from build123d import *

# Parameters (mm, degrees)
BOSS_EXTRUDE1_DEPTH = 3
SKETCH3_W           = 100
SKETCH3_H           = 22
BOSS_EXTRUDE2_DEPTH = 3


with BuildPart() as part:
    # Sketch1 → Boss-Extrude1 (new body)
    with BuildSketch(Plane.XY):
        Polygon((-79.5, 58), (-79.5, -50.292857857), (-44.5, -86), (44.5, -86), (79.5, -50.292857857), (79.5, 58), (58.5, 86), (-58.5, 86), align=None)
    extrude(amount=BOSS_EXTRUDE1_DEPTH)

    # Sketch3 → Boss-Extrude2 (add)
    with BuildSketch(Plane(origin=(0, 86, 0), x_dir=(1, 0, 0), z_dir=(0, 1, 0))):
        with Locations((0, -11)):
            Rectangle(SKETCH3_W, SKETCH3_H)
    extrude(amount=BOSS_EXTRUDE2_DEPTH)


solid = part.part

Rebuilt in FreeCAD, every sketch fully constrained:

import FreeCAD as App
import Part
import Sketcher
from FreeCAD import Vector
Q = App.Units.Quantity

doc = App.newDocument("Part")
body = doc.addObject("PartDesign::Body", "Body")

# Sketch on XY plane
sketch1 = body.newObject("Sketcher::SketchObject", "Sketch")
sketch1.AttachmentSupport = (doc.getObject("XY_Plane"), [""])
sketch1.MapMode = "FlatFace"
sketch1.addGeometry(Part.LineSegment(Vector(-79.5, 58, 0), Vector(-79.5, -50.292858, 0)), False)
sketch1.addGeometry(Part.LineSegment(Vector(-79.5, -50.292858, 0), Vector(-44.5, -86, 0)), False)
sketch1.addGeometry(Part.LineSegment(Vector(-44.5, -86, 0), Vector(44.5, -86, 0)), False)
sketch1.addGeometry(Part.LineSegment(Vector(44.5, -86, 0), Vector(79.5, -50.292858, 0)), False)
sketch1.addGeometry(Part.LineSegment(Vector(79.5, -50.292858, 0), Vector(79.5, 58, 0)), False)
sketch1.addGeometry(Part.LineSegment(Vector(79.5, 58, 0), Vector(58.5, 86, 0)), False)
sketch1.addGeometry(Part.LineSegment(Vector(58.5, 86, 0), Vector(-58.5, 86, 0)), False)
sketch1.addGeometry(Part.LineSegment(Vector(-58.5, 86, 0), Vector(-79.5, 58, 0)), False)
sketch1.addConstraint(Sketcher.Constraint("Coincident", 0, 2, 1, 1))
sketch1.addConstraint(Sketcher.Constraint("Coincident", 1, 2, 2, 1))
sketch1.addConstraint(Sketcher.Constraint("Coincident", 2, 2, 3, 1))
sketch1.addConstraint(Sketcher.Constraint("Coincident", 3, 2, 4, 1))
sketch1.addConstraint(Sketcher.Constraint("Coincident", 4, 2, 5, 1))
sketch1.addConstraint(Sketcher.Constraint("Coincident", 5, 2, 6, 1))
sketch1.addConstraint(Sketcher.Constraint("Coincident", 6, 2, 7, 1))
sketch1.addConstraint(Sketcher.Constraint("Coincident", 7, 2, 0, 1))
sketch1.addConstraint(Sketcher.Constraint("Vertical", 0))
sketch1.addConstraint(Sketcher.Constraint("Horizontal", 2))
sketch1.addConstraint(Sketcher.Constraint("Vertical", 4))
sketch1.addConstraint(Sketcher.Constraint("Horizontal", 6))
sketch1.addConstraint(Sketcher.Constraint("Symmetric", 0, 2, 3, 2, -2))
sketch1.addConstraint(Sketcher.Constraint("Horizontal", 4, 2, 7, 2))
sketch1.addConstraint(Sketcher.Constraint("Equal", 1, 3))
sketch1.addConstraint(Sketcher.Constraint("Equal", 5, 7))
sketch1.addConstraint(Sketcher.Constraint("DistanceX", 2, 1, 2, 2, Q("89 mm")))
sketch1.addConstraint(Sketcher.Constraint("DistanceX", 6, 2, 6, 1, Q("117 mm")))
sketch1.addConstraint(Sketcher.Constraint("Distance", 1, Q("50 mm")))
sketch1.addConstraint(Sketcher.Constraint("Distance", 5, Q("35 mm")))
sketch1.addConstraint(Sketcher.Constraint("DistanceY", 1, 2, -1, 1, Q("86 mm")))
sketch1.addConstraint(Sketcher.Constraint("DistanceY", -1, 1, 4, 2, Q("58 mm")))
sketch1.addConstraint(Sketcher.Constraint("DistanceY", -1, 1, 5, 2, Q("86 mm")))
pad1 = body.newObject("PartDesign::Pad", "Pad")
pad1.Profile = sketch1
pad1.Length = 3

# Sketch on XZ plane
sketch2 = body.newObject("Sketcher::SketchObject", "Sketch001")
sketch2.AttachmentSupport = (doc.getObject("XZ_Plane"), [""])
sketch2.MapMode = "FlatFace"
sketch2.AttachmentOffset = App.Placement(Vector(0, 0, -86), App.Rotation())
sketch2.addGeometry(Part.LineSegment(Vector(-50, 0, 0), Vector(-50, 22, 0)), False)
sketch2.addGeometry(Part.LineSegment(Vector(-50, 22, 0), Vector(50, 22, 0)), False)
sketch2.addGeometry(Part.LineSegment(Vector(50, 22, 0), Vector(50, 0, 0)), False)
sketch2.addGeometry(Part.LineSegment(Vector(50, 0, 0), Vector(-50, 0, 0)), False)
sketch2.addConstraint(Sketcher.Constraint("Coincident", 0, 2, 1, 1))
sketch2.addConstraint(Sketcher.Constraint("Coincident", 1, 2, 2, 1))
sketch2.addConstraint(Sketcher.Constraint("Coincident", 2, 2, 3, 1))
sketch2.addConstraint(Sketcher.Constraint("Coincident", 3, 2, 0, 1))
sketch2.addConstraint(Sketcher.Constraint("Vertical", 0))
sketch2.addConstraint(Sketcher.Constraint("Horizontal", 1))
sketch2.addConstraint(Sketcher.Constraint("Vertical", 2))
sketch2.addConstraint(Sketcher.Constraint("Horizontal", 3))
sketch2.addConstraint(Sketcher.Constraint("Symmetric", 2, 2, 3, 2, -1, 1))
sketch2.addConstraint(Sketcher.Constraint("DistanceX", 1, 1, 1, 2, Q("100 mm")))
sketch2.addConstraint(Sketcher.Constraint("DistanceY", 0, 1, 0, 2, Q("22 mm")))
pad2 = body.newObject("PartDesign::Pad", "Pad001")
pad2.Profile = sketch2
pad2.Length = 3
pad2.Reversed = True

doc.recompute()
